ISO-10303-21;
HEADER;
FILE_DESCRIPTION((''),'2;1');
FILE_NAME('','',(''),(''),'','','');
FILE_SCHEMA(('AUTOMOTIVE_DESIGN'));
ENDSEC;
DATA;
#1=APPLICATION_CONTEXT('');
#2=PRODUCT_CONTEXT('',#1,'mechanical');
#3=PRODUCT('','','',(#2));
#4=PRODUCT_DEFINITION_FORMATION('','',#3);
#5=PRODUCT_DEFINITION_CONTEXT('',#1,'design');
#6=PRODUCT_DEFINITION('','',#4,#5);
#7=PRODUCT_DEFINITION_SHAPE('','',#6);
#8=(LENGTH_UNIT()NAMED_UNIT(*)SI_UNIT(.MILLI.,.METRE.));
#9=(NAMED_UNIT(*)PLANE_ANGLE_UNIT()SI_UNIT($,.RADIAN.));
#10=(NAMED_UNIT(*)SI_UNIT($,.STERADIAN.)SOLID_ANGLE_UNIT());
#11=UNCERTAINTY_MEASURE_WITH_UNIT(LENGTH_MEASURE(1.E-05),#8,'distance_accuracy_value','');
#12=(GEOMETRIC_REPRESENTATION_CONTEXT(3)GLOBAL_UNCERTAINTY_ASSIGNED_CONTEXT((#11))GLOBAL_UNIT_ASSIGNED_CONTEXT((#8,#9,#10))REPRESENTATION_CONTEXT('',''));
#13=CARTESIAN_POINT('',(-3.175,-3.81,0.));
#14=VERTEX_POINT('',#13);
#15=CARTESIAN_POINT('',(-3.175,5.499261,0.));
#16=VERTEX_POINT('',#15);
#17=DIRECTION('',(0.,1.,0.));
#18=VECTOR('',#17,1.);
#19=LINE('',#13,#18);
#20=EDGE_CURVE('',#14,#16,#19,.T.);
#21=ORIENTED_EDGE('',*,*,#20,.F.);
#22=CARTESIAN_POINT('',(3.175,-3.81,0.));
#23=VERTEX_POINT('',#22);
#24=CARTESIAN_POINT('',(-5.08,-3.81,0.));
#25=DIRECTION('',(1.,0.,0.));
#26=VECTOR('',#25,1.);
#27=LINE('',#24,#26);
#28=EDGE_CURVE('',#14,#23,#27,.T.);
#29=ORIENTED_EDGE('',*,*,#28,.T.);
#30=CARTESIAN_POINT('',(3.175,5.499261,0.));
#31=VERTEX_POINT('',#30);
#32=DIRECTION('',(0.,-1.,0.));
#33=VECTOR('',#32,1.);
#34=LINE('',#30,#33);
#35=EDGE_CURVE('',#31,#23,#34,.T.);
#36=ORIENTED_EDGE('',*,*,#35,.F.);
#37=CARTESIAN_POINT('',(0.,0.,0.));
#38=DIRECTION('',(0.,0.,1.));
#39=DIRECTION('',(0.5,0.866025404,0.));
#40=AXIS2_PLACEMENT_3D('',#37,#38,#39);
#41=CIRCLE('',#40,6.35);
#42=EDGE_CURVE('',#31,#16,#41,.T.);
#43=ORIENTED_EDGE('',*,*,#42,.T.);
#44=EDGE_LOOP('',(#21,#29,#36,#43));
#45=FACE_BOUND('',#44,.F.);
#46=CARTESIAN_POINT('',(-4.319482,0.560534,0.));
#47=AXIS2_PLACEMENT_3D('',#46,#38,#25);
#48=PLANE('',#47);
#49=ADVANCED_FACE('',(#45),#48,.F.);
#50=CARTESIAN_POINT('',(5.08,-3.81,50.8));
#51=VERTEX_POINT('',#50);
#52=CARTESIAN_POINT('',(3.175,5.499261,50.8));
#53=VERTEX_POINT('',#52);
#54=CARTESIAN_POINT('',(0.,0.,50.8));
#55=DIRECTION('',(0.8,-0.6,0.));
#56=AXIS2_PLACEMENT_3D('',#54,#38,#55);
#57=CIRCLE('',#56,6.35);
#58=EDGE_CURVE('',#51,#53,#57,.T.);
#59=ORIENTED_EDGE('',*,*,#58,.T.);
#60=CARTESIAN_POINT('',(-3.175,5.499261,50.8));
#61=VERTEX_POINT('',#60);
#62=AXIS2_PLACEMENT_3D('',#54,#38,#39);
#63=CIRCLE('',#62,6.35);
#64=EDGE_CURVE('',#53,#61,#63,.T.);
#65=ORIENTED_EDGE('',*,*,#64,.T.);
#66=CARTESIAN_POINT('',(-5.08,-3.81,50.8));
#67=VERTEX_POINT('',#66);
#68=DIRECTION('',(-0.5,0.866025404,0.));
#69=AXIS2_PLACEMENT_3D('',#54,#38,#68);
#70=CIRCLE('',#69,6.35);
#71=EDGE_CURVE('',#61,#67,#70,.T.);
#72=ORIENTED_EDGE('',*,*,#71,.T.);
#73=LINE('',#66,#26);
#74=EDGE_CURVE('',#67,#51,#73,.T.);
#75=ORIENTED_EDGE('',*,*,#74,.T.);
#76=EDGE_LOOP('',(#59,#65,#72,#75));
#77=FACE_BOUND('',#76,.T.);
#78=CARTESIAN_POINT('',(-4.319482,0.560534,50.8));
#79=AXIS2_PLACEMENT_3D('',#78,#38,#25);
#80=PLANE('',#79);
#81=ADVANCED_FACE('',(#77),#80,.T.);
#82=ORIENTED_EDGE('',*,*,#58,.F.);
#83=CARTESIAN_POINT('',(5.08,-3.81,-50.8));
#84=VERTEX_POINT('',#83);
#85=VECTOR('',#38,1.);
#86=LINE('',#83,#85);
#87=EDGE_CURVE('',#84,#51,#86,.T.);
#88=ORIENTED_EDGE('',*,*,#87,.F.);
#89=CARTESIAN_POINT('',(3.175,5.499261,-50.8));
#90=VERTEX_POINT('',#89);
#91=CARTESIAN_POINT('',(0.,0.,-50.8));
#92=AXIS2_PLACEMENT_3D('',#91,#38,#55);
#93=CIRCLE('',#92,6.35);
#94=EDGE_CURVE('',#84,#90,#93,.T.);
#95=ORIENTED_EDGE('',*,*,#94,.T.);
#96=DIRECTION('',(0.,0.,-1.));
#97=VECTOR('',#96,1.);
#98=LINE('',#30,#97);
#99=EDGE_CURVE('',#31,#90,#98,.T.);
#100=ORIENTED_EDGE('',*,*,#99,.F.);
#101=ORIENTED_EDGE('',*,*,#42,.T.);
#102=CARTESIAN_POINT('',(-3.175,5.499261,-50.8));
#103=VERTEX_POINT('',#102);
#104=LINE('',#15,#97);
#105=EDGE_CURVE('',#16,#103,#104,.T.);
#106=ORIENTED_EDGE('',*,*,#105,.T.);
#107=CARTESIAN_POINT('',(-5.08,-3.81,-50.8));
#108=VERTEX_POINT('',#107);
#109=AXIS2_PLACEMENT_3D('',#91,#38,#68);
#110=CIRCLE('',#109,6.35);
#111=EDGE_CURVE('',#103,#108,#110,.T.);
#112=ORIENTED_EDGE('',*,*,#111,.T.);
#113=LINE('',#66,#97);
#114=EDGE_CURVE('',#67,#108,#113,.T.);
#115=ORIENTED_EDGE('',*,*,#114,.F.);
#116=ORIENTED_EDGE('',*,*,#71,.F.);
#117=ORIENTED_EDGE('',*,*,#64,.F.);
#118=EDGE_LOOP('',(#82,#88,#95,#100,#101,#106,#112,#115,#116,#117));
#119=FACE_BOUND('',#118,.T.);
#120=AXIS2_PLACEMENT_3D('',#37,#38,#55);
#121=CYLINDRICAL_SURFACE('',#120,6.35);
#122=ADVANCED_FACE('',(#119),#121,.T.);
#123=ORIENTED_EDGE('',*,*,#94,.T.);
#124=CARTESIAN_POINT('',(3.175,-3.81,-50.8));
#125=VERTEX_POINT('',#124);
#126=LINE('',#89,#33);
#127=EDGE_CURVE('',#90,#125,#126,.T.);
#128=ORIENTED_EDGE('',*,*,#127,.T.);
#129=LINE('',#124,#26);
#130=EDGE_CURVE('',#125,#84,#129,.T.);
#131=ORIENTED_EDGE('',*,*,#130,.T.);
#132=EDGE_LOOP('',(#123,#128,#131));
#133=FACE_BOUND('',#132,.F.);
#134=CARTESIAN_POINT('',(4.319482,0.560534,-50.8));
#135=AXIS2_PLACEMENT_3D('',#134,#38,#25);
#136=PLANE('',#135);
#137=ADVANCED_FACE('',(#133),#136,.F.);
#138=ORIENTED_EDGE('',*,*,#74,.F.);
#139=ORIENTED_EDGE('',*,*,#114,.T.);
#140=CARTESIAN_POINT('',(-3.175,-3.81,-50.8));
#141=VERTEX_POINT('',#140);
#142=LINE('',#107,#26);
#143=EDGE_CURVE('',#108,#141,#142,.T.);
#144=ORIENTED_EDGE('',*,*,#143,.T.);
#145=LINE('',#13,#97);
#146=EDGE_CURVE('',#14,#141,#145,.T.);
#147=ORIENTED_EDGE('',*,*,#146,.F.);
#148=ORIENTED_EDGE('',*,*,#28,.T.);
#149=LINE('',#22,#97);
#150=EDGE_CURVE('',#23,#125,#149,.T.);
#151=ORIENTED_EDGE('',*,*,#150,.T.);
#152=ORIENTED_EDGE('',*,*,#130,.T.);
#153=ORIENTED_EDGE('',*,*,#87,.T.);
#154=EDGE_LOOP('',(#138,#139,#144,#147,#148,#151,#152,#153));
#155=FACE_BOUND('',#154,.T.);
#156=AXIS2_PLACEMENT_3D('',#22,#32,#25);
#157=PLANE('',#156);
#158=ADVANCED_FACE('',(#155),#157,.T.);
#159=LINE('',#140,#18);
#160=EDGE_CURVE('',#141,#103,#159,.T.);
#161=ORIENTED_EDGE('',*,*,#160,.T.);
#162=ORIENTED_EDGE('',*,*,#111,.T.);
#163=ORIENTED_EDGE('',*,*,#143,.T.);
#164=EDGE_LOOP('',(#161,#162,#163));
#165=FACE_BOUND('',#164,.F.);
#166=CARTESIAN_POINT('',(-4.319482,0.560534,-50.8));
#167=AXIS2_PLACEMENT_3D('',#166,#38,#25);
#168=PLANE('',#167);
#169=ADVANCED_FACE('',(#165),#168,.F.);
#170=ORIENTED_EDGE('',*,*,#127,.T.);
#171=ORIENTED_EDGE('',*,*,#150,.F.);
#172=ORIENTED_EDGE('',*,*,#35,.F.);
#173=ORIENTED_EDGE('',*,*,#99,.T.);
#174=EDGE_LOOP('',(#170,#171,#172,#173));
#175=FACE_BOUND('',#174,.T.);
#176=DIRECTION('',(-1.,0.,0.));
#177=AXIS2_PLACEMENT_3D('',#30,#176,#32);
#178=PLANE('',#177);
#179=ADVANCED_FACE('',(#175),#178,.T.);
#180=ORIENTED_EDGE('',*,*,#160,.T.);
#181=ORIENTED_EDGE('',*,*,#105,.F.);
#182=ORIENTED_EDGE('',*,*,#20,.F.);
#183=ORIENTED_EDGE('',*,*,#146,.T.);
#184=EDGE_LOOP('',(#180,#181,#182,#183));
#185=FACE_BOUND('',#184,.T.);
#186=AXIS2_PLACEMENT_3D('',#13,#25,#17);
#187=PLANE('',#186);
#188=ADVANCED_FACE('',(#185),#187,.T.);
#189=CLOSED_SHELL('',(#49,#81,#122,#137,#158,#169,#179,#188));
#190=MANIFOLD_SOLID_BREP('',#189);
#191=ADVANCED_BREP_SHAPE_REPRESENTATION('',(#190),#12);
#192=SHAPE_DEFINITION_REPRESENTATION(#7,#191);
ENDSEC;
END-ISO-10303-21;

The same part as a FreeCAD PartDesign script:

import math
import FreeCAD as App
import Part
import Sketcher
Q = App.Units.Quantity

doc = App.newDocument("Part")
body = doc.addObject("PartDesign::Body", "Body")

sketch1 = body.newObject("Sketcher::SketchObject", "Sketch")
sketch1.AttachmentSupport = (doc.getObject("XY_Plane"), [""])
sketch1.MapMode = "FlatFace"
sketch1.addGeometry([
    Part.ArcOfCircle(Part.Circle(App.Vector(0, 0, 0), App.Vector(0, 0, 1), 6), math.radians(120), math.radians(217)),
    Part.LineSegment(App.Vector(-5, -4, 0), App.Vector(5, -4, 0)),
    Part.ArcOfCircle(Part.Circle(App.Vector(0, 0, 0), App.Vector(0, 0, 1), 6), math.radians(-37), math.radians(60)),
    Part.ArcOfCircle(Part.Circle(App.Vector(0, 0, 0), App.Vector(0, 0, 1), 6), math.radians(60), math.radians(120)),
], False)
sketch1.addConstraint([
    Sketcher.Constraint("Coincident", 0, 2, 1, 1),
    Sketcher.Constraint("Coincident", 1, 2, 2, 1),
    Sketcher.Constraint("Tangent", 2, 2, 3, 1),
    Sketcher.Constraint("Tangent", 3, 2, 0, 1),
    Sketcher.Constraint("Horizontal", 1),
    Sketcher.Constraint("Coincident", 0, 3, -1, 1),
    Sketcher.Constraint("Coincident", 2, 3, -1, 1),
    Sketcher.Constraint("Horizontal", 2, 2, 3, 2),
    Sketcher.Constraint("Radius", 0, Q("0.25 in")),
    Sketcher.Constraint("DistanceX", 1, 1, 1, 2, Q("0.4 in")),
    Sketcher.Constraint("DistanceX", 3, 2, 2, 2, Q("0.25 in")),
])
pad1 = body.newObject("PartDesign::Pad", "Pad")
pad1.Profile = sketch1
pad1.Length = Q("2 in")

sketch2 = body.newObject("Sketcher::SketchObject", "Sketch001")
sketch2.AttachmentSupport = (doc.getObject("XY_Plane"), [""])
sketch2.MapMode = "FlatFace"
sketch2.addGeometry([
    Part.LineSegment(App.Vector(3.2, -3.8, 0), App.Vector(5.1, -3.8, 0)),
    Part.ArcOfCircle(Part.Circle(App.Vector(0, 0, 0), App.Vector(0, 0, 1), 6.3), math.radians(-37), math.radians(60)),
    Part.LineSegment(App.Vector(3.2, 5.5, 0), App.Vector(3.2, -3.8, 0)),
    Part.LineSegment(App.Vector(-3.2, -3.8, 0), App.Vector(-3.2, 5.5, 0)),
    Part.ArcOfCircle(Part.Circle(App.Vector(0, 0, 0), App.Vector(0, 0, 1), 6.3), math.radians(120), math.radians(217)),
    Part.LineSegment(App.Vector(-5.1, -3.8, 0), App.Vector(-3.2, -3.8, 0)),
], False)
sketch2.addConstraint([
    Sketcher.Constraint("Coincident", 0, 2, 1, 1),
    Sketcher.Constraint("Coincident", 1, 2, 2, 1),
    Sketcher.Constraint("Coincident", 2, 2, 0, 1),
    Sketcher.Constraint("Coincident", 3, 2, 4, 1),
    Sketcher.Constraint("Coincident", 4, 2, 5, 1),
    Sketcher.Constraint("Coincident", 5, 2, 3, 1),
    Sketcher.Constraint("Horizontal", 0),
    Sketcher.Constraint("Vertical", 2),
    Sketcher.Constraint("Vertical", 3),
    Sketcher.Constraint("Horizontal", 5),
    Sketcher.Constraint("Coincident", 1, 3, -1, 1),
    Sketcher.Constraint("Coincident", 4, 3, -1, 1),
    Sketcher.Constraint("Equal", 1, 4),
    Sketcher.Constraint("Symmetric", 2, 2, 5, 2, -2),
    Sketcher.Constraint("Radius", 1, Q("0.25 in")),
    Sketcher.Constraint("DistanceX", -1, 1, 0, 2, Q("0.2 in")),
    Sketcher.Constraint("DistanceX", 0, 1, 0, 2, Q("0.075 in")),
])
pad2 = body.newObject("PartDesign::Pad", "Pad001")
pad2.Profile = sketch2
pad2.Length = Q("2 in")
pad2.Reversed = True

doc.recompute()
